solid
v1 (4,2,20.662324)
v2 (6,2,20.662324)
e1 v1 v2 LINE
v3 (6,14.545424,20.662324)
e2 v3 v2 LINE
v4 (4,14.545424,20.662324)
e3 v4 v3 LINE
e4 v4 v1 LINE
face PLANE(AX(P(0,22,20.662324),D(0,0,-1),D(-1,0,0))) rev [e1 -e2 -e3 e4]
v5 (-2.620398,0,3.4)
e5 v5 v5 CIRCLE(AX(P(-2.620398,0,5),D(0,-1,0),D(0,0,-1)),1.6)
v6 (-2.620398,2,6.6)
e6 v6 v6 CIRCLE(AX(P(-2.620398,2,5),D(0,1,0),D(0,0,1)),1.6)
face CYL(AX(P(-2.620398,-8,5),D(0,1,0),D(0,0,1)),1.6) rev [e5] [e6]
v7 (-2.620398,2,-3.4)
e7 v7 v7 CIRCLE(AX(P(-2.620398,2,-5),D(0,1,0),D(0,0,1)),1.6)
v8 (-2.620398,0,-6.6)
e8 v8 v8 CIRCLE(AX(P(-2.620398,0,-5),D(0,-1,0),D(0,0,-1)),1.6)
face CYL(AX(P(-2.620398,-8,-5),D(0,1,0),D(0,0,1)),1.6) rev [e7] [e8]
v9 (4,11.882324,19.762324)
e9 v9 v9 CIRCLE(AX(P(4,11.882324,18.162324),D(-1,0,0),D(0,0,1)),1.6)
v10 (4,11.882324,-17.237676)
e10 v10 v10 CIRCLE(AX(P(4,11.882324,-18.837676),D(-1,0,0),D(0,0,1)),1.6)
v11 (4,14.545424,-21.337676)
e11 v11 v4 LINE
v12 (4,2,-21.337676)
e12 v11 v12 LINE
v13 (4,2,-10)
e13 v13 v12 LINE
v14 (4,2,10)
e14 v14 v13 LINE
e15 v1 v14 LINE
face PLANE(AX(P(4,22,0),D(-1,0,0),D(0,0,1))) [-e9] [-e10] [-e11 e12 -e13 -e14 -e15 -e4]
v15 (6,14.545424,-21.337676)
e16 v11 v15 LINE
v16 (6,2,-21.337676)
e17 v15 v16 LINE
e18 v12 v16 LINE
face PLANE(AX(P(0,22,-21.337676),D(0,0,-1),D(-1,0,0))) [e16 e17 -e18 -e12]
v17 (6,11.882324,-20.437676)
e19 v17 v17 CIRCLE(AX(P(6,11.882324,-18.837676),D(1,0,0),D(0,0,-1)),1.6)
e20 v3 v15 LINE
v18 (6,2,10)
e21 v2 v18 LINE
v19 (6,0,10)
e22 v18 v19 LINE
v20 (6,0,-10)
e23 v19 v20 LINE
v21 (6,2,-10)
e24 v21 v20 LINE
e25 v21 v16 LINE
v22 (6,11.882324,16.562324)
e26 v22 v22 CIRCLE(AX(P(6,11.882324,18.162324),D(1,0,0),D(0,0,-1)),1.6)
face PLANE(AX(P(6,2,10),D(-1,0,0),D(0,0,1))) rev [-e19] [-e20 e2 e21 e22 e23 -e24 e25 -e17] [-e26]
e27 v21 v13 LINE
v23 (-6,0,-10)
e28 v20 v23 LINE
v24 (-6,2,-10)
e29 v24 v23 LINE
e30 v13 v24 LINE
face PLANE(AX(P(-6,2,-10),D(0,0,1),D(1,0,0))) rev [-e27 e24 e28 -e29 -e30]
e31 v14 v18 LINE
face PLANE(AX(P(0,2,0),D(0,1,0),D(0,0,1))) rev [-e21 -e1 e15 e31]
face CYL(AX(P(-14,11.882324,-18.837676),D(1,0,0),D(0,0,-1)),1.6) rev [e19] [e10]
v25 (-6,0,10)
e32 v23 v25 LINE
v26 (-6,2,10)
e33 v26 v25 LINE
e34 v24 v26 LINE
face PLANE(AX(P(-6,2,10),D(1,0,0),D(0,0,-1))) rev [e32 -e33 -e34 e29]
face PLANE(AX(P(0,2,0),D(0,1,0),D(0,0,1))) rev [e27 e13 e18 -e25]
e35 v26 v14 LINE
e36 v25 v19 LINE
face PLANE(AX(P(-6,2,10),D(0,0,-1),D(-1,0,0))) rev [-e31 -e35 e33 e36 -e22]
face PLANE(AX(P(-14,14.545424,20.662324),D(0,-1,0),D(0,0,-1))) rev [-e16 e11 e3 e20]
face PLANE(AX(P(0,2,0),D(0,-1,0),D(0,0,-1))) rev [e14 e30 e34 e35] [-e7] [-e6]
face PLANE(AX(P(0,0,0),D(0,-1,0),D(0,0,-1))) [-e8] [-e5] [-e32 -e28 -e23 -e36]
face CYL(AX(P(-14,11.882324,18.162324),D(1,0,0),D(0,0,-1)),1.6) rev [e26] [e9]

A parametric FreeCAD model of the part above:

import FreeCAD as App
import Part
import Sketcher
from FreeCAD import Vector


def add_polygon(sketch, points):
    """Adds a closed chain of lines whose ends are joined by coincident constraints."""
    first, n = sketch.GeometryCount, len(points)
    for a, b in zip(points, points[1:] + points[:1]):
        sketch.addGeometry(Part.LineSegment(App.Vector(*a, 0), App.Vector(*b, 0)), False)
    for i in range(n):
        sketch.addConstraint(Sketcher.Constraint("Coincident", first + i, 2, first + (i + 1) % n, 1))

doc = App.newDocument("Part")
body = doc.addObject("PartDesign::Body", "Body")

sketch1 = body.newObject("Sketcher::SketchObject", "Sketch")
sketch1.AttachmentSupport = (doc.getObject("XZ_Plane"), [""])
sketch1.MapMode = "FlatFace"
add_polygon(sketch1, [(-6, -10), (-6, 10), (6, 10), (6, -10)])
sketch1.addConstraint([
    Sketcher.Constraint("Vertical", 0),
    Sketcher.Constraint("Horizontal", 1),
    Sketcher.Constraint("Vertical", 2),
    Sketcher.Constraint("Horizontal", 3),
    Sketcher.Constraint("Symmetric", 0, 2, 2, 2, -1, 1),
    Sketcher.Constraint("DistanceX", 1, 1, 1, 2, 12.0),
    Sketcher.Constraint("DistanceY", 0, 1, 0, 2, 20.0),
])
pad1 = body.newObject("PartDesign::Pad", "Pad")
pad1.Profile = sketch1
pad1.Length = 2
pad1.Reversed = True

sketch2 = body.newObject("Sketcher::SketchObject", "Sketch001")
sketch2.AttachmentSupport = (doc.getObject("XZ_Plane"), [""])
sketch2.MapMode = "FlatFace"
sketch2.AttachmentOffset = App.Placement(Vector(0, 0, -2), App.Rotation())
add_polygon(sketch2, [(4, -21.337676), (4, 20.662324), (6, 20.662324), (6, -21.337676)])
sketch2.addConstraint([
    Sketcher.Constraint("Vertical", 0),
    Sketcher.Constraint("Horizontal", 1),
    Sketcher.Constraint("Vertical", 2),
    Sketcher.Constraint("Horizontal", 3),
    Sketcher.Constraint("DistanceX", 1, 1, 1, 2, 2.0),
    Sketcher.Constraint("DistanceY", 0, 1, 0, 2, 42.0),
    Sketcher.Constraint("DistanceX", -1, 1, 0, 2, 4.0),
    Sketcher.Constraint("DistanceY", -1, 1, 0, 2, 20.662324),
])
pad2 = body.newObject("PartDesign::Pad", "Pad001")
pad2.Profile = sketch2
pad2.Length = 20
pad2.Reversed = True

sketch3 = body.newObject("Sketcher::SketchObject", "Sketch002")
sketch3.AttachmentSupport = (doc.getObject("YZ_Plane"), [""])
sketch3.MapMode = "FlatFace"
sketch3.AttachmentOffset = App.Placement(Vector(0, 0, 6), App.Rotation())
sketch3.addGeometry(Part.Circle(Vector(11.882324, 18.162324, 0), Vector(0, 0, 1), 1.6), False)
sketch3.addGeometry(Part.Circle(Vector(11.882324, -18.837676, 0), Vector(0, 0, 1), 1.6), False)
add_polygon(sketch3, [(22, 20.662324), (14.545424, 20.662324), (14.545424, -21.337676), (22, -21.337676)])
sketch3.addConstraint([
    Sketcher.Constraint("Horizontal", 2),
    Sketcher.Constraint("Vertical", 3),
    Sketcher.Constraint("Horizontal", 4),
    Sketcher.Constraint("Vertical", 5),
    Sketcher.Constraint("Equal", 0, 1),
    Sketcher.Constraint("Vertical", 0, 3, 1, 3),
    Sketcher.Constraint("Diameter", 0, 3.2),
    Sketcher.Constraint("DistanceY", 3, 2, 3, 1, 42.0),
    Sketcher.Constraint("DistanceX", -1, 1, 4, 2, 22.0),
    Sketcher.Constraint("DistanceY", 1, 3, 0, 3, 37.0),
    Sketcher.Constraint("DistanceY", 0, 3, 2, 2, 2.5),
    Sketcher.Constraint("DistanceX", 0, 3, 2, 2, 2.6631),
    Sketcher.Constraint("DistanceX", 2, 2, 2, 1, 7.454576),
    Sketcher.Constraint("DistanceY", -1, 1, 0, 3, 18.162324),
])
pocket1 = body.newObject("PartDesign::Pocket", "Pocket")
pocket1.Profile = sketch3
pocket1.Length = 20

sketch4 = body.newObject("Sketcher::SketchObject", "Sketch003")
sketch4.AttachmentSupport = (doc.getObject("XZ_Plane"), [""])
sketch4.MapMode = "FlatFace"
sketch4.AttachmentOffset = App.Placement(Vector(0, 0, -2), App.Rotation())
sketch4.addGeometry([
    Part.Circle(Vector(-2.620398, -5, 0), Vector(0, 0, 1), 1.6),
    Part.Circle(Vector(-2.620398, 5, 0), Vector(0, 0, 1), 1.6),
], False)
sketch4.addConstraint([
    Sketcher.Constraint("Equal", 0, 1),
    Sketcher.Constraint("Symmetric", 0, 3, 1, 3, -1),
    Sketcher.Constraint("Diameter", 0, 3.2),
    Sketcher.Constraint("DistanceY", 0, 3, -1, 1, 5.0),
    Sketcher.Constraint("DistanceX", 0, 3, -1, 1, 2.620398),
])
pocket2 = body.newObject("PartDesign::Pocket", "Pocket001")
pocket2.Profile = sketch4
pocket2.Length = 10
pocket2.Reversed = True

doc.recompute()
